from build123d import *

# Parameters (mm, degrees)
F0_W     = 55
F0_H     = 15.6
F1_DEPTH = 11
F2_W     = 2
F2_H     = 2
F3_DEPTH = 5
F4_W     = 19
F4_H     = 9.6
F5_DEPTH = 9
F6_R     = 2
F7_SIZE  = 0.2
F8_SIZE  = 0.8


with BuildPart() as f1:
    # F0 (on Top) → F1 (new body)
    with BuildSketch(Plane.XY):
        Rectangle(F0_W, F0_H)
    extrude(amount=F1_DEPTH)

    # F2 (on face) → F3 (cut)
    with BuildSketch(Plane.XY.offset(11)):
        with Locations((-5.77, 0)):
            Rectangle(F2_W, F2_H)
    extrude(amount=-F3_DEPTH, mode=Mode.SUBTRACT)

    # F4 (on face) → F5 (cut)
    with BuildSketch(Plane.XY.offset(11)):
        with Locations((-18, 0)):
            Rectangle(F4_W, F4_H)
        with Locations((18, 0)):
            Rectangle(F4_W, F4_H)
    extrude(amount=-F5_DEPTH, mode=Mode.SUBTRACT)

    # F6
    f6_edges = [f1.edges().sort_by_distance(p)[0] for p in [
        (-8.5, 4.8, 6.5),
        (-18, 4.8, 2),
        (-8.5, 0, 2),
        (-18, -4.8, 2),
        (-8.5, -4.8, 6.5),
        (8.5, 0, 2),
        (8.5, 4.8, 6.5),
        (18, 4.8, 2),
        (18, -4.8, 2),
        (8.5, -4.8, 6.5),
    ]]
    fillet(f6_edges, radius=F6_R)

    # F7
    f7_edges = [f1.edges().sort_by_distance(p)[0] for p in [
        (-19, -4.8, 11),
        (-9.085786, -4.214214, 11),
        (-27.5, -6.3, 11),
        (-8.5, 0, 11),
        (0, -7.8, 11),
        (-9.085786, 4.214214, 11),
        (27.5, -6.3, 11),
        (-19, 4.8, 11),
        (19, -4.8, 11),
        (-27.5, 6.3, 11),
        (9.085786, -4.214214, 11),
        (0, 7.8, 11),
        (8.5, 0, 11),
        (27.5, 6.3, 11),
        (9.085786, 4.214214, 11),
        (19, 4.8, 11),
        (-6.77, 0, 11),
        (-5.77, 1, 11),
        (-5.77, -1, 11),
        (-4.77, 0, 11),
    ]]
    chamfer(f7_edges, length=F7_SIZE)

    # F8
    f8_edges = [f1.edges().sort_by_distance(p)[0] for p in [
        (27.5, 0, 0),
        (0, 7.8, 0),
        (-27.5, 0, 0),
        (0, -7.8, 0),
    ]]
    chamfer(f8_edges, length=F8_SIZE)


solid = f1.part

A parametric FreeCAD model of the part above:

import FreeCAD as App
import Part
import Sketcher


def edges_at(feature, points):
    """Names of the edges that pass closest to the given points."""
    edges = feature.Shape.Edges
    near = lambda p: min(range(len(edges)), key=lambda i: edges[i].distToShape(Part.Vertex(*p))[0])
    return sorted({f"Edge{near(p) + 1}" for p in points})


def add_polygon(sketch, points):
    """Adds a closed chain of lines whose ends are joined by coincident constraints."""
    first, n = sketch.GeometryCount, len(points)
    for a, b in zip(points, points[1:] + points[:1]):
        sketch.addGeometry(Part.LineSegment(App.Vector(*a, 0), App.Vector(*b, 0)), False)
    for i in range(n):
        sketch.addConstraint(Sketcher.Constraint("Coincident", first + i, 2, first + (i + 1) % n, 1))

doc = App.newDocument("Part")
body = doc.addObject("PartDesign::Body", "Body")

# Sketch on XY plane
sketch1 = body.newObject("Sketcher::SketchObject", "Sketch")
sketch1.AttachmentSupport = (doc.getObject("XY_Plane"), [""])
sketch1.MapMode = "FlatFace"
add_polygon(sketch1, [(-28, 8), (-28, -8), (28, -8), (28, 8)])  # lines 0-3
sketch1.addConstraint([
    Sketcher.Constraint("Vertical", 0),
    Sketcher.Constraint("Horizontal", 1),
    Sketcher.Constraint("Vertical", 2),
    Sketcher.Constraint("Horizontal", 3),
    Sketcher.Constraint("Symmetric", 0, 2, 2, 2, -1, 1),
    Sketcher.Constraint("DistanceX", 1, 1, 1, 2, 55.0),
    Sketcher.Constraint("DistanceY", 0, 2, 0, 1, 15.6),
])
pad1 = body.newObject("PartDesign::Pad", "Pad")
pad1.Profile = sketch1
pad1.Length = 11

# Sketch on XY plane
sketch2 = body.newObject("Sketcher::SketchObject", "Sketch001")
sketch2.AttachmentSupport = (doc.getObject("XY_Plane"), [""])
sketch2.MapMode = "FlatFace"
sketch2.AttachmentOffset = App.Placement(App.Vector(0, 0, 11), App.Rotation())
add_polygon(sketch2, [(-6.8, 1), (-6.8, -1), (-4.8, -1), (-4.8, 1)])  # lines 0-3
sketch2.addConstraint([
    Sketcher.Constraint("Vertical", 0),
    Sketcher.Constraint("Horizontal", 1),
    Sketcher.Constraint("Vertical", 2),
    Sketcher.Constraint("Horizontal", 3),
    Sketcher.Constraint("Equal", 3, 0),
    Sketcher.Constraint("DistanceX", 1, 1, 1, 2, 2.0),
    Sketcher.Constraint("DistanceY", 0, 2, -1, 1, 1.0),
    Sketcher.Constraint("DistanceX", 0, 2, -1, 1, 6.77),
])
pocket1 = body.newObject("PartDesign::Pocket", "Pocket")
pocket1.Profile = sketch2
pocket1.Length = 5

# Sketch on XY plane
sketch3 = body.newObject("Sketcher::SketchObject", "Sketch002")
sketch3.AttachmentSupport = (doc.getObject("XY_Plane"), [""])
sketch3.MapMode = "FlatFace"
sketch3.AttachmentOffset = App.Placement(App.Vector(0, 0, 11), App.Rotation())
add_polygon(sketch3, [(-28, 5), (-28, -5), (-8, -5), (-8, 5)])  # lines 0-3
add_polygon(sketch3, [(8, 5), (8, -5), (28, -5), (28, 5)])  # lines 4-7
sketch3.addConstraint([
    Sketcher.Constraint("Vertical", 0),
    Sketcher.Constraint("Horizontal", 1),
    Sketcher.Constraint("Vertical", 2),
    Sketcher.Constraint("Horizontal", 3),
    Sketcher.Constraint("Vertical", 4),
    Sketcher.Constraint("Horizontal", 5),
    Sketcher.Constraint("Vertical", 6),
    Sketcher.Constraint("Horizontal", 7),
    Sketcher.Constraint("Symmetric", 2, 2, 4, 2, -1, 1),
    Sketcher.Constraint("Symmetric", 0, 2, 6, 2, -1, 1),
    Sketcher.Constraint("Horizontal", 1, 2, 4, 2),
    Sketcher.Constraint("DistanceX", 1, 1, 1, 2, 19.0),
    Sketcher.Constraint("DistanceY", 0, 2, 0, 1, 9.6),
    Sketcher.Constraint("DistanceX", 1, 2, 4, 2, 17.0),
])
pocket2 = body.newObject("PartDesign::Pocket", "Pocket001")
pocket2.Profile = sketch3
pocket2.Length = 9
doc.recompute()

fillet = body.newObject("PartDesign::Fillet", "Fillet")
fillet.Base = (pocket2, edges_at(pocket2, [
    (-8.5, 4.8, 6.5),
    (-18, 4.8, 2),
    (-8.5, 0, 2),
    (-18, -4.8, 2),
    (-8.5, -4.8, 6.5),
    (8.5, 0, 2),
    (8.5, 4.8, 6.5),
    (18, 4.8, 2),
    (18, -4.8, 2),
    (8.5, -4.8, 6.5),
]))
fillet.Radius = 2
doc.recompute()

chamfer = body.newObject("PartDesign::Chamfer", "Chamfer")
chamfer.Base = (fillet, edges_at(fillet, [
    (-19, -4.8, 11),
    (-9.086, -4.214, 11),
    (-27.5, -6.3, 11),
    (-8.5, 0, 11),
    (0, -7.8, 11),
    (-9.086, 4.214, 11),
    (27.5, -6.3, 11),
    (-19, 4.8, 11),
    (19, -4.8, 11),
    (-27.5, 6.3, 11),
    (9.086, -4.214, 11),
    (0, 7.8, 11),
    (8.5, 0, 11),
    (27.5, 6.3, 11),
    (9.086, 4.214, 11),
    (19, 4.8, 11),
    (-6.77, 0, 11),
    (-5.77, 1, 11),
    (-5.77, -1, 11),
    (-4.77, 0, 11),
]))
chamfer.Size = 0.2
doc.recompute()

chamfer2 = body.newObject("PartDesign::Chamfer", "Chamfer001")
chamfer2.Base = (chamfer, edges_at(chamfer, [
    (27.5, 0, 0),
    (0, 7.8, 0),
    (-27.5, 0, 0),
    (0, -7.8, 0),
]))
chamfer2.Size = 0.8

doc.recompute()
